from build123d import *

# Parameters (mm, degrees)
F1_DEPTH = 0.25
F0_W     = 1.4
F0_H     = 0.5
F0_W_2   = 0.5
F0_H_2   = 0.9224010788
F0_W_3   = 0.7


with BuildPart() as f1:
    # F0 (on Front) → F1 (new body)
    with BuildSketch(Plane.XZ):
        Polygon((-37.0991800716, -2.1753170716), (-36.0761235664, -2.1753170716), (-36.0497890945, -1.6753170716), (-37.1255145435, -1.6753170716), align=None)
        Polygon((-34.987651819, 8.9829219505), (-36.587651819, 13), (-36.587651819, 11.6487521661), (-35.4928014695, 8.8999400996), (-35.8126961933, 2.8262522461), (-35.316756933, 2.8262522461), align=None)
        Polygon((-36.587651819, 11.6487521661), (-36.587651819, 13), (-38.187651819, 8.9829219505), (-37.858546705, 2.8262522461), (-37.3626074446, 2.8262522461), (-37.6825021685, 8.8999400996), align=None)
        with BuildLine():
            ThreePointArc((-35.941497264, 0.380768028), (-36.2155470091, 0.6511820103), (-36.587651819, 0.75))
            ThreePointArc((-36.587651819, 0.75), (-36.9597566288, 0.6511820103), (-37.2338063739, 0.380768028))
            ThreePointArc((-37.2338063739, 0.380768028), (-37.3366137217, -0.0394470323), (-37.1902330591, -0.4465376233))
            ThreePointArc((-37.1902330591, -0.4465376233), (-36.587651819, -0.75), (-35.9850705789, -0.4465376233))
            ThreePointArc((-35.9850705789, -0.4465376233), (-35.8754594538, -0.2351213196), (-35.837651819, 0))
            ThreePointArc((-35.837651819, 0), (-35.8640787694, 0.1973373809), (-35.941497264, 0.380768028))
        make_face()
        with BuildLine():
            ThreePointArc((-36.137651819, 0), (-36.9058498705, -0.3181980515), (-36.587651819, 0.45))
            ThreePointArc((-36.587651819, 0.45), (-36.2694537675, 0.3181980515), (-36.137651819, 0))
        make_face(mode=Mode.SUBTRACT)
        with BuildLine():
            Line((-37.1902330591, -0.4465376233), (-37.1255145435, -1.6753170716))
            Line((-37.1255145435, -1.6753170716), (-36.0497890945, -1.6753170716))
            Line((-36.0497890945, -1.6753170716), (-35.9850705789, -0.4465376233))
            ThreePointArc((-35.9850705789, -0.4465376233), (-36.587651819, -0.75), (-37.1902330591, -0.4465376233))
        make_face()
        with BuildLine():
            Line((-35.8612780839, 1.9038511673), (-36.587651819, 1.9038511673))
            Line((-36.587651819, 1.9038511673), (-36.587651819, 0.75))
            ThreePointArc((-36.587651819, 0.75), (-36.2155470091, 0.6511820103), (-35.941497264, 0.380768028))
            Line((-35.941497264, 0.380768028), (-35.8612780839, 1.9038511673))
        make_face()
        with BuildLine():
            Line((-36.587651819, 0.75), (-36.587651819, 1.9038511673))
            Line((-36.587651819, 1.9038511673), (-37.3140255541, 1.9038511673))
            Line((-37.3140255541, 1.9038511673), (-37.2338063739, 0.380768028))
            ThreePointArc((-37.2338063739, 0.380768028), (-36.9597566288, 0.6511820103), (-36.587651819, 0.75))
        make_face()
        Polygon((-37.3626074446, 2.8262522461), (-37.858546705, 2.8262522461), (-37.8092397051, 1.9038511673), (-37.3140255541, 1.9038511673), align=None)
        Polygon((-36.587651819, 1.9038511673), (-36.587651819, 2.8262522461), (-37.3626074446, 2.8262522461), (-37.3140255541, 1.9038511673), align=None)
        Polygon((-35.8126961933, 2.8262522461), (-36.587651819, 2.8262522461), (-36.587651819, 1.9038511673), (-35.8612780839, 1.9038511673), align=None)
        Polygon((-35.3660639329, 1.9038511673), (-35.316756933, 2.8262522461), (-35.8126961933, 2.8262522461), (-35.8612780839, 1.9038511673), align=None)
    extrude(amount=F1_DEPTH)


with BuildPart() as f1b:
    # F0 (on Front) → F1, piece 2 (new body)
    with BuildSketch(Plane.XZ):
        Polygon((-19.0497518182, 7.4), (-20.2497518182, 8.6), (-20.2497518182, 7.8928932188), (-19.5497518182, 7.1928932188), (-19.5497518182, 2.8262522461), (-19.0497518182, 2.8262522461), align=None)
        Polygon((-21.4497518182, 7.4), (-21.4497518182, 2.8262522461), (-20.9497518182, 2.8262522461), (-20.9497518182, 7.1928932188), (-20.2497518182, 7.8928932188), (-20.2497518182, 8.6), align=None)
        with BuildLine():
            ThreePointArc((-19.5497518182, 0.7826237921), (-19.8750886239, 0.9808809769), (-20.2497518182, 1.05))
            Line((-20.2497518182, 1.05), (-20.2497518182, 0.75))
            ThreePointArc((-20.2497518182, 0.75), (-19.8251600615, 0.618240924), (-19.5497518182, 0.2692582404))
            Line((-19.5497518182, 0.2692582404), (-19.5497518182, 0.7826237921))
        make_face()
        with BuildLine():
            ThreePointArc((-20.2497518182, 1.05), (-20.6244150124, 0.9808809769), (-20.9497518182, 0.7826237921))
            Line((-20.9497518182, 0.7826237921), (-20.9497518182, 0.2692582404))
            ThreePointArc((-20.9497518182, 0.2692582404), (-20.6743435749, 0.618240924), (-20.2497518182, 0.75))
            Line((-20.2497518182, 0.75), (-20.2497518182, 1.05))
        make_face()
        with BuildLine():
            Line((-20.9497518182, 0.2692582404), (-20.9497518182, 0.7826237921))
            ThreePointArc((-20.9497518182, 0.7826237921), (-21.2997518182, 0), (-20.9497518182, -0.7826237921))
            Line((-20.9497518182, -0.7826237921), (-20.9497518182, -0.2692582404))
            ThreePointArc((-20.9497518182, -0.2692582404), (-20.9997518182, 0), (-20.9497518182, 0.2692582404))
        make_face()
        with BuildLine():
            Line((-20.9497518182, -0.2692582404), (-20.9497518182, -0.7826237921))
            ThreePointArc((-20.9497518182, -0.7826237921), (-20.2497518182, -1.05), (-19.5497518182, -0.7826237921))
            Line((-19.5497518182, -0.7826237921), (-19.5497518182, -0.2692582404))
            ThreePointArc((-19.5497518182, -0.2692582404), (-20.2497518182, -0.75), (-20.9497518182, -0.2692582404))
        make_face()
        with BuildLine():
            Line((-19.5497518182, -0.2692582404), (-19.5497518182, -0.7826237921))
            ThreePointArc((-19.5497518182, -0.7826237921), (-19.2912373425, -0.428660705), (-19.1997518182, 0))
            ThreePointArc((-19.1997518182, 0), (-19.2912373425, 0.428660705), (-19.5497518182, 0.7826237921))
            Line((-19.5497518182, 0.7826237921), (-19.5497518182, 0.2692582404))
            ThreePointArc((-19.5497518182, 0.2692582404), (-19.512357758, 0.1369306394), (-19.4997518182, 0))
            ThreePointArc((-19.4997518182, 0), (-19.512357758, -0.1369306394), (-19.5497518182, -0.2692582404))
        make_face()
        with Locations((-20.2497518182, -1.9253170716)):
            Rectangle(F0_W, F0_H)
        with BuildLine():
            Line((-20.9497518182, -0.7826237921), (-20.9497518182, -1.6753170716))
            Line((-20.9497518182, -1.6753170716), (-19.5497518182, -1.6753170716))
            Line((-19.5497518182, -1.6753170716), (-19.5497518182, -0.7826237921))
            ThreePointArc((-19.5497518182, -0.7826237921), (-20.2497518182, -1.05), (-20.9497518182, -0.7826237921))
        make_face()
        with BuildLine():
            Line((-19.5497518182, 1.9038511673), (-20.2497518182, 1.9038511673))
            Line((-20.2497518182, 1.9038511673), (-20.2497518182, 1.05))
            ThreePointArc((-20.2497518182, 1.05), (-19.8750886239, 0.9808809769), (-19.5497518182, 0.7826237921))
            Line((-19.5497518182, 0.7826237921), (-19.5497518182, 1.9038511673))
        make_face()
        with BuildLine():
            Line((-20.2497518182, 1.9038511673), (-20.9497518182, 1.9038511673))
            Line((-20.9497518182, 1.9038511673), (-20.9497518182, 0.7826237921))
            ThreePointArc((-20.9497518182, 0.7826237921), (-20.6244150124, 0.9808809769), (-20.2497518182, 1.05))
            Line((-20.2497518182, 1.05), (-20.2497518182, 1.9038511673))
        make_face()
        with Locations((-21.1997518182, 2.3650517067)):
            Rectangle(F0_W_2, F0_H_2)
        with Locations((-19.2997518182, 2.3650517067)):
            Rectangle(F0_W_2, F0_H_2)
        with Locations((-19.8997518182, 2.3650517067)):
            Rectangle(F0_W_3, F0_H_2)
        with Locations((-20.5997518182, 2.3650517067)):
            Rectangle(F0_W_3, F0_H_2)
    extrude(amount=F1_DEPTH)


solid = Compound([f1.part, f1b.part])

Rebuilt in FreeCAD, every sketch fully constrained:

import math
import FreeCAD as App
import Part
import Sketcher


def add_polygon(sketch, points):
    """Adds a closed chain of lines whose ends are joined by coincident constraints."""
    first, n = sketch.GeometryCount, len(points)
    for a, b in zip(points, points[1:] + points[:1]):
        sketch.addGeometry(Part.LineSegment(App.Vector(*a, 0), App.Vector(*b, 0)), False)
    for i in range(n):
        sketch.addConstraint(Sketcher.Constraint("Coincident", first + i, 2, first + (i + 1) % n, 1))

doc = App.newDocument("Part")
body = doc.addObject("PartDesign::Body", "Body")

sketch1 = body.newObject("Sketcher::SketchObject", "Sketch")
sketch1.AttachmentSupport = (doc.getObject("XZ_Plane"), [""])
sketch1.MapMode = "FlatFace"
sketch1.addGeometry(Part.LineSegment(App.Vector(-35.94, 0.38, 0), App.Vector(-35.86, 1.9, 0)), False)
sketch1.addGeometry(Part.LineSegment(App.Vector(-35.86, 1.9, 0), App.Vector(-35.37, 1.9, 0)), False)
sketch1.addGeometry(Part.LineSegment(App.Vector(-35.37, 1.9, 0), App.Vector(-35.32, 2.83, 0)), False)
sketch1.addGeometry(Part.LineSegment(App.Vector(-35.32, 2.83, 0), App.Vector(-34.99, 8.98, 0)), False)
sketch1.addGeometry(Part.LineSegment(App.Vector(-34.99, 8.98, 0), App.Vector(-36.59, 13, 0)), False)
sketch1.addGeometry(Part.LineSegment(App.Vector(-36.59, 13, 0), App.Vector(-38.19, 8.98, 0)), False)
sketch1.addGeometry(Part.LineSegment(App.Vector(-38.19, 8.98, 0), App.Vector(-37.86, 2.83, 0)), False)
sketch1.addGeometry(Part.LineSegment(App.Vector(-37.86, 2.83, 0), App.Vector(-37.81, 1.9, 0)), False)
sketch1.addGeometry(Part.LineSegment(App.Vector(-37.81, 1.9, 0), App.Vector(-37.31, 1.9, 0)), False)
sketch1.addGeometry(Part.LineSegment(App.Vector(-37.31, 1.9, 0), App.Vector(-37.23, 0.38, 0)), False)
sketch1.addGeometry(Part.ArcOfCircle(Part.Circle(App.Vector(-36.59, 0, 0), App.Vector(0, 0, 1), 0.75), math.radians(149), math.radians(217)), False)
sketch1.addGeometry(Part.LineSegment(App.Vector(-37.19, -0.45, 0), App.Vector(-37.13, -1.68, 0)), False)
sketch1.addGeometry(Part.LineSegment(App.Vector(-37.13, -1.68, 0), App.Vector(-37.1, -2.18, 0)), False)
sketch1.addGeometry(Part.LineSegment(App.Vector(-37.1, -2.18, 0), App.Vector(-36.08, -2.18, 0)), False)
sketch1.addGeometry(Part.LineSegment(App.Vector(-36.08, -2.18, 0), App.Vector(-36.05, -1.68, 0)), False)
sketch1.addGeometry(Part.LineSegment(App.Vector(-36.05, -1.68, 0), App.Vector(-35.99, -0.45, 0)), False)
sketch1.addGeometry(Part.ArcOfCircle(Part.Circle(App.Vector(-36.59, 0, 0), App.Vector(0, 0, 1), 0.75), math.radians(-37), math.radians(0)), False)
sketch1.addGeometry(Part.ArcOfCircle(Part.Circle(App.Vector(-36.59, 0, 0), App.Vector(0, 0, 1), 0.75), math.radians(0), math.radians(31)), False)
sketch1.addGeometry(Part.ArcOfCircle(Part.Circle(App.Vector(-36.59, 0, 0), App.Vector(0, 0, 1), 0.45), math.radians(90), math.radians(360)), False)
sketch1.addGeometry(Part.ArcOfCircle(Part.Circle(App.Vector(-36.59, 0, 0), App.Vector(0, 0, 1), 0.45), math.radians(0), math.radians(90)), False)
add_polygon(sketch1, [(-35.49, 8.9), (-35.81, 2.83), (-37.36, 2.83), (-37.68, 8.9), (-36.59, 11.65)])
sketch1.addConstraint([
    Sketcher.Constraint("Coincident", 0, 2, 1, 1),
    Sketcher.Constraint("Coincident", 1, 2, 2, 1),
    Sketcher.Constraint("Coincident", 2, 2, 3, 1),
    Sketcher.Constraint("Coincident", 3, 2, 4, 1),
    Sketcher.Constraint("Coincident", 4, 2, 5, 1),
    Sketcher.Constraint("Coincident", 5, 2, 6, 1),
    Sketcher.Constraint("Coincident", 6, 2, 7, 1),
    Sketcher.Constraint("Coincident", 7, 2, 8, 1),
    Sketcher.Constraint("Coincident", 8, 2, 9, 1),
    Sketcher.Constraint("Coincident", 9, 2, 10, 1),
    Sketcher.Constraint("Coincident", 10, 2, 11, 1),
    Sketcher.Constraint("Coincident", 11, 2, 12, 1),
    Sketcher.Constraint("Coincident", 12, 2, 13, 1),
    Sketcher.Constraint("Coincident", 13, 2, 14, 1),
    Sketcher.Constraint("Coincident", 14, 2, 15, 1),
    Sketcher.Constraint("Coincident", 15, 2, 16, 1),
    Sketcher.Constraint("Tangent", 16, 2, 17, 1),
    Sketcher.Constraint("Coincident", 17, 2, 0, 1),
    Sketcher.Constraint("Tangent", 18, 1, 19, 2),
    Sketcher.Constraint("Coincident", 19, 1, 18, 2),
    Sketcher.Constraint("Horizontal", 1),
    Sketcher.Constraint("Horizontal", 8),
    Sketcher.Constraint("Horizontal", 13),
    Sketcher.Constraint("Horizontal", 21),
    Sketcher.Constraint("Coincident", 16, 3, 10, 3),
    Sketcher.Constraint("Coincident", 18, 3, 10, 3),
    Sketcher.Constraint("Equal", 10, 16),
    Sketcher.Constraint("Equal", 16, 17),
    Sketcher.Constraint("PointOnObject", 10, 3, -1),
    Sketcher.Constraint("PointOnObject", 16, 2, -1),
    Sketcher.Constraint("PointOnObject", 19, 1, -1),
    Sketcher.Constraint("Parallel", 2, 3),
    Sketcher.Constraint("Parallel", 6, 7),
    Sketcher.Constraint("Parallel", 9, 11),
    Sketcher.Constraint("Parallel", 11, 12),
    Sketcher.Constraint("Parallel", 0, 14),
    Sketcher.Constraint("Parallel", 14, 15),
    Sketcher.Constraint("Parallel", 15, 20),
    Sketcher.Constraint("Parallel", 12, 22),
    Sketcher.Constraint("Parallel", 5, 23),
    Sketcher.Constraint("Parallel", 4, 24),
    Sketcher.Constraint("Horizontal", 3, 2, 5, 2),
    Sketcher.Constraint("Horizontal", 2, 2, 6, 2),
    Sketcher.Constraint("Horizontal", 1, 2, 7, 2),
    Sketcher.Constraint("Horizontal", 11, 2, 14, 2),
    Sketcher.Constraint("Horizontal", 10, 2, 15, 2),
    Sketcher.Constraint("Horizontal", 9, 2, 17, 2),
    Sketcher.Constraint("Horizontal", 6, 2, 20, 2),
    Sketcher.Constraint("Horizontal", 22, 2, 24, 2),
    Sketcher.Constraint("Vertical", 19, 3, 4, 2),
    Sketcher.Constraint("Vertical", 4, 2, 18, 1),
    Sketcher.Constraint("Vertical", 18, 1, 23, 2),
    Sketcher.Constraint("Equal", 1, 8),
    Sketcher.Constraint("Equal", 4, 5),
    Sketcher.Constraint("Equal", 3, 6),
    Sketcher.Constraint("Radius", 10, 0.75),
    Sketcher.Constraint("Radius", 18, 0.45),
    Sketcher.Constraint("DistanceY", -1, 1, 4, 2, 13.0),
    Sketcher.Constraint("DistanceX", 10, 3, 3, 2, 1.6),
    Sketcher.Constraint("DistanceY", 12, 2, 11, 2, 0.5),
    Sketcher.Constraint("DistanceX", 21, 2, 21, 1, 1.549911),
    Sketcher.Constraint("DistanceX", 24, 2, -1, 1, 35.492801),
    Sketcher.Constraint("DistanceY", 1, 2, 2, 2, 0.922401),
    Sketcher.Constraint("DistanceY", 20, 2, 23, 2, 8.8225),
    Sketcher.Constraint("DistanceX", 22, 2, 24, 2, 2.189701),
    Sketcher.Constraint("Distance", 3, 6.16546),
    Sketcher.Constraint("Distance", 23, 2.958828),
    Sketcher.Constraint("DistanceX", 1, 1, 1, 2, 0.495214),
    Sketcher.Constraint("DistanceX", 13, 1, 13, 2, 1.023057),
    Sketcher.Constraint("DistanceX", 0, 2, -1, 1, 35.861278),
    Sketcher.Constraint("DistanceX", 15, 2, -1, 1, 35.985071),
])
pad1 = body.newObject("PartDesign::Pad", "Pad")
pad1.Profile = sketch1
pad1.Length = 0.25
body2 = doc.addObject("PartDesign::Body", "Body001")

sketch2 = body2.newObject("Sketcher::SketchObject", "Sketch001")
sketch2.AttachmentSupport = (doc.getObject("XZ_Plane001"), [""])
sketch2.MapMode = "FlatFace"
sketch2.addGeometry(Part.LineSegment(App.Vector(-21.45, 1.9, 0), App.Vector(-20.95, 1.9, 0)), False)
sketch2.addGeometry(Part.LineSegment(App.Vector(-20.95, 1.9, 0), App.Vector(-20.95, 0.78, 0)), False)
sketch2.addGeometry(Part.ArcOfCircle(Part.Circle(App.Vector(-20.25, 0, 0), App.Vector(0, 0, 1), 1.05), math.radians(132), math.radians(228)), False)
sketch2.addGeometry(Part.LineSegment(App.Vector(-20.95, -0.78, 0), App.Vector(-20.95, -2.18, 0)), False)
sketch2.addGeometry(Part.LineSegment(App.Vector(-20.95, -2.18, 0), App.Vector(-19.55, -2.18, 0)), False)
sketch2.addGeometry(Part.LineSegment(App.Vector(-19.55, -2.18, 0), App.Vector(-19.55, -0.78, 0)), False)
sketch2.addGeometry(Part.ArcOfCircle(Part.Circle(App.Vector(-20.25, 0, 0), App.Vector(0, 0, 1), 1.05), math.radians(-48), math.radians(0)), False)
sketch2.addGeometry(Part.ArcOfCircle(Part.Circle(App.Vector(-20.25, 0, 0), App.Vector(0, 0, 1), 1.05), math.radians(0), math.radians(48)), False)
sketch2.addGeometry(Part.LineSegment(App.Vector(-19.55, 0.78, 0), App.Vector(-19.55, 1.9, 0)), False)
sketch2.addGeometry(Part.LineSegment(App.Vector(-19.55, 1.9, 0), App.Vector(-19.05, 1.9, 0)), False)
sketch2.addGeometry(Part.LineSegment(App.Vector(-19.05, 1.9, 0), App.Vector(-19.05, 7.4, 0)), False)
sketch2.addGeometry(Part.LineSegment(App.Vector(-19.05, 7.4, 0), App.Vector(-20.25, 8.6, 0)), False)
sketch2.addGeometry(Part.LineSegment(App.Vector(-20.25, 8.6, 0), App.Vector(-21.45, 7.4, 0)), False)
sketch2.addGeometry(Part.LineSegment(App.Vector(-21.45, 7.4, 0), App.Vector(-21.45, 1.9, 0)), False)
sketch2.addGeometry(Part.ArcOfCircle(Part.Circle(App.Vector(-20.25, 0, 0), App.Vector(0, 0, 1), 0.75), math.radians(-21), math.radians(0)), False)
sketch2.addGeometry(Part.ArcOfCircle(Part.Circle(App.Vector(-20.25, 0, 0), App.Vector(0, 0, 1), 0.75), math.radians(-159), math.radians(-21)), False)
sketch2.addGeometry(Part.ArcOfCircle(Part.Circle(App.Vector(-20.25, 0, 0), App.Vector(0, 0, 1), 0.75), math.radians(159), math.radians(201)), False)
sketch2.addGeometry(Part.ArcOfCircle(Part.Circle(App.Vector(-20.25, 0, 0), App.Vector(0, 0, 1), 0.75), math.radians(90), math.radians(159)), False)
sketch2.addGeometry(Part.ArcOfCircle(Part.Circle(App.Vector(-20.25, 0, 0), App.Vector(0, 0, 1), 0.75), math.radians(21), math.radians(90)), False)
sketch2.addGeometry(Part.ArcOfCircle(Part.Circle(App.Vector(-20.25, 0, 0), App.Vector(0, 0, 1), 0.75), math.radians(0), math.radians(21)), False)
add_polygon(sketch2, [(-19.55, 2.83), (-20.95, 2.83), (-20.95, 7.19), (-20.25, 7.89), (-19.55, 7.19)])
sketch2.addConstraint([
    Sketcher.Constraint("Coincident", 0, 2, 1, 1),
    Sketcher.Constraint("Coincident", 1, 2, 2, 1),
    Sketcher.Constraint("Coincident", 2, 2, 3, 1),
    Sketcher.Constraint("Coincident", 3, 2, 4, 1),
    Sketcher.Constraint("Coincident", 4, 2, 5, 1),
    Sketcher.Constraint("Coincident", 5, 2, 6, 1),
    Sketcher.Constraint("Tangent", 6, 2, 7, 1),
    Sketcher.Constraint("Coincident", 7, 2, 8, 1),
    Sketcher.Constraint("Coincident", 8, 2, 9, 1),
    Sketcher.Constraint("Coincident", 9, 2, 10, 1),
    Sketcher.Constraint("Coincident", 10, 2, 11, 1),
    Sketcher.Constraint("Coincident", 11, 2, 12, 1),
    Sketcher.Constraint("Coincident", 12, 2, 13, 1),
    Sketcher.Constraint("Coincident", 13, 2, 0, 1),
    Sketcher.Constraint("Tangent", 14, 1, 15, 2),
    Sketcher.Constraint("Tangent", 15, 1, 16, 2),
    Sketcher.Constraint("Tangent", 16, 1, 17, 2),
    Sketcher.Constraint("Tangent", 17, 1, 18, 2),
    Sketcher.Constraint("Tangent", 18, 1, 19, 2),
    Sketcher.Constraint("Tangent", 19, 1, 14, 2),
    Sketcher.Constraint("Horizontal", 0),
    Sketcher.Constraint("Vertical", 1),
    Sketcher.Constraint("Vertical", 3),
    Sketcher.Constraint("Horizontal", 4),
    Sketcher.Constraint("Vertical", 5),
    Sketcher.Constraint("Vertical", 8),
    Sketcher.Constraint("Horizontal", 9),
    Sketcher.Constraint("Vertical", 10),
    Sketcher.Constraint("Vertical", 13),
    Sketcher.Constraint("Horizontal", 20),
    Sketcher.Constraint("Vertical", 21),
    Sketcher.Constraint("Vertical", 24),
    Sketcher.Constraint("Coincident", 6, 3, 2, 3),
    Sketcher.Constraint("Coincident", 14, 3, 2, 3),
    Sketcher.Constraint("Coincident", 16, 3, 2, 3),
    Sketcher.Constraint("Equal", 2, 6),
    Sketcher.Constraint("Equal", 6, 7),
    Sketcher.Constraint("Equal", 16, 17),
    Sketcher.Constraint("Symmetric", 1, 2, 2, 2, -1),
    Sketcher.Constraint("PointOnObject", 6, 2, -1),
    Sketcher.Constraint("PointOnObject", 19, 1, -1),
    Sketcher.Constraint("Perpendicular", 11, 12),
    Sketcher.Constraint("Parallel", 12, 22),
    Sketcher.Constraint("Perpendicular", 22, 23),
    Sketcher.Constraint("Horizontal", 2, 2, 5, 2),
    Sketcher.Constraint("Horizontal", 1, 2, 7, 2),
    Sketcher.Constraint("Horizontal", 0, 2, 8, 2),
    Sketcher.Constraint("Horizontal", 10, 2, 12, 2),
    Sketcher.Constraint("Horizontal", 14, 1, 15, 1),
    Sketcher.Constraint("Horizontal", 16, 1, 18, 1),
    Sketcher.Constraint("Horizontal", 21, 2, 23, 2),
    Sketcher.Constraint("Vertical", 19, 3, 11, 2),
    Sketcher.Constraint("Vertical", 8, 2, 14, 1),
    Sketcher.Constraint("Vertical", 15, 1, 16, 1),
    Sketcher.Constraint("Vertical", 11, 2, 17, 1),
    Sketcher.Constraint("Vertical", 16, 1, 20, 2),
    Sketcher.Constraint("Vertical", 17, 1, 22, 2),
    Sketcher.Constraint("Vertical", 18, 1, 23, 2),
    Sketcher.Constraint("Radius", 2, 1.05),
    Sketcher.Constraint("Radius", 14, 0.75),
    Sketcher.Constraint("DistanceX", 0, 1, 0, 2, 0.5),
    Sketcher.Constraint("DistanceX", 4, 1, 4, 2, 1.4),
    Sketcher.Constraint("DistanceY", -1, 1, 10, 2, 7.4),
    Sketcher.Constraint("DistanceY", 10, 1, 10, 2, 5.496149),
    Sketcher.Constraint("DistanceY", 21, 1, 21, 2, 4.366641),
    Sketcher.Constraint("DistanceY", 0, 2, 20, 2, 0.922401),
    Sketcher.Constraint("DistanceY", 3, 2, 3, 1, 1.392693),
    Sketcher.Constraint("DistanceX", 2, 3, -1, 1, 20.249752),
])
pad2 = body2.newObject("PartDesign::Pad", "Pad001")
pad2.Profile = sketch2
pad2.Length = 0.25

doc.recompute()
